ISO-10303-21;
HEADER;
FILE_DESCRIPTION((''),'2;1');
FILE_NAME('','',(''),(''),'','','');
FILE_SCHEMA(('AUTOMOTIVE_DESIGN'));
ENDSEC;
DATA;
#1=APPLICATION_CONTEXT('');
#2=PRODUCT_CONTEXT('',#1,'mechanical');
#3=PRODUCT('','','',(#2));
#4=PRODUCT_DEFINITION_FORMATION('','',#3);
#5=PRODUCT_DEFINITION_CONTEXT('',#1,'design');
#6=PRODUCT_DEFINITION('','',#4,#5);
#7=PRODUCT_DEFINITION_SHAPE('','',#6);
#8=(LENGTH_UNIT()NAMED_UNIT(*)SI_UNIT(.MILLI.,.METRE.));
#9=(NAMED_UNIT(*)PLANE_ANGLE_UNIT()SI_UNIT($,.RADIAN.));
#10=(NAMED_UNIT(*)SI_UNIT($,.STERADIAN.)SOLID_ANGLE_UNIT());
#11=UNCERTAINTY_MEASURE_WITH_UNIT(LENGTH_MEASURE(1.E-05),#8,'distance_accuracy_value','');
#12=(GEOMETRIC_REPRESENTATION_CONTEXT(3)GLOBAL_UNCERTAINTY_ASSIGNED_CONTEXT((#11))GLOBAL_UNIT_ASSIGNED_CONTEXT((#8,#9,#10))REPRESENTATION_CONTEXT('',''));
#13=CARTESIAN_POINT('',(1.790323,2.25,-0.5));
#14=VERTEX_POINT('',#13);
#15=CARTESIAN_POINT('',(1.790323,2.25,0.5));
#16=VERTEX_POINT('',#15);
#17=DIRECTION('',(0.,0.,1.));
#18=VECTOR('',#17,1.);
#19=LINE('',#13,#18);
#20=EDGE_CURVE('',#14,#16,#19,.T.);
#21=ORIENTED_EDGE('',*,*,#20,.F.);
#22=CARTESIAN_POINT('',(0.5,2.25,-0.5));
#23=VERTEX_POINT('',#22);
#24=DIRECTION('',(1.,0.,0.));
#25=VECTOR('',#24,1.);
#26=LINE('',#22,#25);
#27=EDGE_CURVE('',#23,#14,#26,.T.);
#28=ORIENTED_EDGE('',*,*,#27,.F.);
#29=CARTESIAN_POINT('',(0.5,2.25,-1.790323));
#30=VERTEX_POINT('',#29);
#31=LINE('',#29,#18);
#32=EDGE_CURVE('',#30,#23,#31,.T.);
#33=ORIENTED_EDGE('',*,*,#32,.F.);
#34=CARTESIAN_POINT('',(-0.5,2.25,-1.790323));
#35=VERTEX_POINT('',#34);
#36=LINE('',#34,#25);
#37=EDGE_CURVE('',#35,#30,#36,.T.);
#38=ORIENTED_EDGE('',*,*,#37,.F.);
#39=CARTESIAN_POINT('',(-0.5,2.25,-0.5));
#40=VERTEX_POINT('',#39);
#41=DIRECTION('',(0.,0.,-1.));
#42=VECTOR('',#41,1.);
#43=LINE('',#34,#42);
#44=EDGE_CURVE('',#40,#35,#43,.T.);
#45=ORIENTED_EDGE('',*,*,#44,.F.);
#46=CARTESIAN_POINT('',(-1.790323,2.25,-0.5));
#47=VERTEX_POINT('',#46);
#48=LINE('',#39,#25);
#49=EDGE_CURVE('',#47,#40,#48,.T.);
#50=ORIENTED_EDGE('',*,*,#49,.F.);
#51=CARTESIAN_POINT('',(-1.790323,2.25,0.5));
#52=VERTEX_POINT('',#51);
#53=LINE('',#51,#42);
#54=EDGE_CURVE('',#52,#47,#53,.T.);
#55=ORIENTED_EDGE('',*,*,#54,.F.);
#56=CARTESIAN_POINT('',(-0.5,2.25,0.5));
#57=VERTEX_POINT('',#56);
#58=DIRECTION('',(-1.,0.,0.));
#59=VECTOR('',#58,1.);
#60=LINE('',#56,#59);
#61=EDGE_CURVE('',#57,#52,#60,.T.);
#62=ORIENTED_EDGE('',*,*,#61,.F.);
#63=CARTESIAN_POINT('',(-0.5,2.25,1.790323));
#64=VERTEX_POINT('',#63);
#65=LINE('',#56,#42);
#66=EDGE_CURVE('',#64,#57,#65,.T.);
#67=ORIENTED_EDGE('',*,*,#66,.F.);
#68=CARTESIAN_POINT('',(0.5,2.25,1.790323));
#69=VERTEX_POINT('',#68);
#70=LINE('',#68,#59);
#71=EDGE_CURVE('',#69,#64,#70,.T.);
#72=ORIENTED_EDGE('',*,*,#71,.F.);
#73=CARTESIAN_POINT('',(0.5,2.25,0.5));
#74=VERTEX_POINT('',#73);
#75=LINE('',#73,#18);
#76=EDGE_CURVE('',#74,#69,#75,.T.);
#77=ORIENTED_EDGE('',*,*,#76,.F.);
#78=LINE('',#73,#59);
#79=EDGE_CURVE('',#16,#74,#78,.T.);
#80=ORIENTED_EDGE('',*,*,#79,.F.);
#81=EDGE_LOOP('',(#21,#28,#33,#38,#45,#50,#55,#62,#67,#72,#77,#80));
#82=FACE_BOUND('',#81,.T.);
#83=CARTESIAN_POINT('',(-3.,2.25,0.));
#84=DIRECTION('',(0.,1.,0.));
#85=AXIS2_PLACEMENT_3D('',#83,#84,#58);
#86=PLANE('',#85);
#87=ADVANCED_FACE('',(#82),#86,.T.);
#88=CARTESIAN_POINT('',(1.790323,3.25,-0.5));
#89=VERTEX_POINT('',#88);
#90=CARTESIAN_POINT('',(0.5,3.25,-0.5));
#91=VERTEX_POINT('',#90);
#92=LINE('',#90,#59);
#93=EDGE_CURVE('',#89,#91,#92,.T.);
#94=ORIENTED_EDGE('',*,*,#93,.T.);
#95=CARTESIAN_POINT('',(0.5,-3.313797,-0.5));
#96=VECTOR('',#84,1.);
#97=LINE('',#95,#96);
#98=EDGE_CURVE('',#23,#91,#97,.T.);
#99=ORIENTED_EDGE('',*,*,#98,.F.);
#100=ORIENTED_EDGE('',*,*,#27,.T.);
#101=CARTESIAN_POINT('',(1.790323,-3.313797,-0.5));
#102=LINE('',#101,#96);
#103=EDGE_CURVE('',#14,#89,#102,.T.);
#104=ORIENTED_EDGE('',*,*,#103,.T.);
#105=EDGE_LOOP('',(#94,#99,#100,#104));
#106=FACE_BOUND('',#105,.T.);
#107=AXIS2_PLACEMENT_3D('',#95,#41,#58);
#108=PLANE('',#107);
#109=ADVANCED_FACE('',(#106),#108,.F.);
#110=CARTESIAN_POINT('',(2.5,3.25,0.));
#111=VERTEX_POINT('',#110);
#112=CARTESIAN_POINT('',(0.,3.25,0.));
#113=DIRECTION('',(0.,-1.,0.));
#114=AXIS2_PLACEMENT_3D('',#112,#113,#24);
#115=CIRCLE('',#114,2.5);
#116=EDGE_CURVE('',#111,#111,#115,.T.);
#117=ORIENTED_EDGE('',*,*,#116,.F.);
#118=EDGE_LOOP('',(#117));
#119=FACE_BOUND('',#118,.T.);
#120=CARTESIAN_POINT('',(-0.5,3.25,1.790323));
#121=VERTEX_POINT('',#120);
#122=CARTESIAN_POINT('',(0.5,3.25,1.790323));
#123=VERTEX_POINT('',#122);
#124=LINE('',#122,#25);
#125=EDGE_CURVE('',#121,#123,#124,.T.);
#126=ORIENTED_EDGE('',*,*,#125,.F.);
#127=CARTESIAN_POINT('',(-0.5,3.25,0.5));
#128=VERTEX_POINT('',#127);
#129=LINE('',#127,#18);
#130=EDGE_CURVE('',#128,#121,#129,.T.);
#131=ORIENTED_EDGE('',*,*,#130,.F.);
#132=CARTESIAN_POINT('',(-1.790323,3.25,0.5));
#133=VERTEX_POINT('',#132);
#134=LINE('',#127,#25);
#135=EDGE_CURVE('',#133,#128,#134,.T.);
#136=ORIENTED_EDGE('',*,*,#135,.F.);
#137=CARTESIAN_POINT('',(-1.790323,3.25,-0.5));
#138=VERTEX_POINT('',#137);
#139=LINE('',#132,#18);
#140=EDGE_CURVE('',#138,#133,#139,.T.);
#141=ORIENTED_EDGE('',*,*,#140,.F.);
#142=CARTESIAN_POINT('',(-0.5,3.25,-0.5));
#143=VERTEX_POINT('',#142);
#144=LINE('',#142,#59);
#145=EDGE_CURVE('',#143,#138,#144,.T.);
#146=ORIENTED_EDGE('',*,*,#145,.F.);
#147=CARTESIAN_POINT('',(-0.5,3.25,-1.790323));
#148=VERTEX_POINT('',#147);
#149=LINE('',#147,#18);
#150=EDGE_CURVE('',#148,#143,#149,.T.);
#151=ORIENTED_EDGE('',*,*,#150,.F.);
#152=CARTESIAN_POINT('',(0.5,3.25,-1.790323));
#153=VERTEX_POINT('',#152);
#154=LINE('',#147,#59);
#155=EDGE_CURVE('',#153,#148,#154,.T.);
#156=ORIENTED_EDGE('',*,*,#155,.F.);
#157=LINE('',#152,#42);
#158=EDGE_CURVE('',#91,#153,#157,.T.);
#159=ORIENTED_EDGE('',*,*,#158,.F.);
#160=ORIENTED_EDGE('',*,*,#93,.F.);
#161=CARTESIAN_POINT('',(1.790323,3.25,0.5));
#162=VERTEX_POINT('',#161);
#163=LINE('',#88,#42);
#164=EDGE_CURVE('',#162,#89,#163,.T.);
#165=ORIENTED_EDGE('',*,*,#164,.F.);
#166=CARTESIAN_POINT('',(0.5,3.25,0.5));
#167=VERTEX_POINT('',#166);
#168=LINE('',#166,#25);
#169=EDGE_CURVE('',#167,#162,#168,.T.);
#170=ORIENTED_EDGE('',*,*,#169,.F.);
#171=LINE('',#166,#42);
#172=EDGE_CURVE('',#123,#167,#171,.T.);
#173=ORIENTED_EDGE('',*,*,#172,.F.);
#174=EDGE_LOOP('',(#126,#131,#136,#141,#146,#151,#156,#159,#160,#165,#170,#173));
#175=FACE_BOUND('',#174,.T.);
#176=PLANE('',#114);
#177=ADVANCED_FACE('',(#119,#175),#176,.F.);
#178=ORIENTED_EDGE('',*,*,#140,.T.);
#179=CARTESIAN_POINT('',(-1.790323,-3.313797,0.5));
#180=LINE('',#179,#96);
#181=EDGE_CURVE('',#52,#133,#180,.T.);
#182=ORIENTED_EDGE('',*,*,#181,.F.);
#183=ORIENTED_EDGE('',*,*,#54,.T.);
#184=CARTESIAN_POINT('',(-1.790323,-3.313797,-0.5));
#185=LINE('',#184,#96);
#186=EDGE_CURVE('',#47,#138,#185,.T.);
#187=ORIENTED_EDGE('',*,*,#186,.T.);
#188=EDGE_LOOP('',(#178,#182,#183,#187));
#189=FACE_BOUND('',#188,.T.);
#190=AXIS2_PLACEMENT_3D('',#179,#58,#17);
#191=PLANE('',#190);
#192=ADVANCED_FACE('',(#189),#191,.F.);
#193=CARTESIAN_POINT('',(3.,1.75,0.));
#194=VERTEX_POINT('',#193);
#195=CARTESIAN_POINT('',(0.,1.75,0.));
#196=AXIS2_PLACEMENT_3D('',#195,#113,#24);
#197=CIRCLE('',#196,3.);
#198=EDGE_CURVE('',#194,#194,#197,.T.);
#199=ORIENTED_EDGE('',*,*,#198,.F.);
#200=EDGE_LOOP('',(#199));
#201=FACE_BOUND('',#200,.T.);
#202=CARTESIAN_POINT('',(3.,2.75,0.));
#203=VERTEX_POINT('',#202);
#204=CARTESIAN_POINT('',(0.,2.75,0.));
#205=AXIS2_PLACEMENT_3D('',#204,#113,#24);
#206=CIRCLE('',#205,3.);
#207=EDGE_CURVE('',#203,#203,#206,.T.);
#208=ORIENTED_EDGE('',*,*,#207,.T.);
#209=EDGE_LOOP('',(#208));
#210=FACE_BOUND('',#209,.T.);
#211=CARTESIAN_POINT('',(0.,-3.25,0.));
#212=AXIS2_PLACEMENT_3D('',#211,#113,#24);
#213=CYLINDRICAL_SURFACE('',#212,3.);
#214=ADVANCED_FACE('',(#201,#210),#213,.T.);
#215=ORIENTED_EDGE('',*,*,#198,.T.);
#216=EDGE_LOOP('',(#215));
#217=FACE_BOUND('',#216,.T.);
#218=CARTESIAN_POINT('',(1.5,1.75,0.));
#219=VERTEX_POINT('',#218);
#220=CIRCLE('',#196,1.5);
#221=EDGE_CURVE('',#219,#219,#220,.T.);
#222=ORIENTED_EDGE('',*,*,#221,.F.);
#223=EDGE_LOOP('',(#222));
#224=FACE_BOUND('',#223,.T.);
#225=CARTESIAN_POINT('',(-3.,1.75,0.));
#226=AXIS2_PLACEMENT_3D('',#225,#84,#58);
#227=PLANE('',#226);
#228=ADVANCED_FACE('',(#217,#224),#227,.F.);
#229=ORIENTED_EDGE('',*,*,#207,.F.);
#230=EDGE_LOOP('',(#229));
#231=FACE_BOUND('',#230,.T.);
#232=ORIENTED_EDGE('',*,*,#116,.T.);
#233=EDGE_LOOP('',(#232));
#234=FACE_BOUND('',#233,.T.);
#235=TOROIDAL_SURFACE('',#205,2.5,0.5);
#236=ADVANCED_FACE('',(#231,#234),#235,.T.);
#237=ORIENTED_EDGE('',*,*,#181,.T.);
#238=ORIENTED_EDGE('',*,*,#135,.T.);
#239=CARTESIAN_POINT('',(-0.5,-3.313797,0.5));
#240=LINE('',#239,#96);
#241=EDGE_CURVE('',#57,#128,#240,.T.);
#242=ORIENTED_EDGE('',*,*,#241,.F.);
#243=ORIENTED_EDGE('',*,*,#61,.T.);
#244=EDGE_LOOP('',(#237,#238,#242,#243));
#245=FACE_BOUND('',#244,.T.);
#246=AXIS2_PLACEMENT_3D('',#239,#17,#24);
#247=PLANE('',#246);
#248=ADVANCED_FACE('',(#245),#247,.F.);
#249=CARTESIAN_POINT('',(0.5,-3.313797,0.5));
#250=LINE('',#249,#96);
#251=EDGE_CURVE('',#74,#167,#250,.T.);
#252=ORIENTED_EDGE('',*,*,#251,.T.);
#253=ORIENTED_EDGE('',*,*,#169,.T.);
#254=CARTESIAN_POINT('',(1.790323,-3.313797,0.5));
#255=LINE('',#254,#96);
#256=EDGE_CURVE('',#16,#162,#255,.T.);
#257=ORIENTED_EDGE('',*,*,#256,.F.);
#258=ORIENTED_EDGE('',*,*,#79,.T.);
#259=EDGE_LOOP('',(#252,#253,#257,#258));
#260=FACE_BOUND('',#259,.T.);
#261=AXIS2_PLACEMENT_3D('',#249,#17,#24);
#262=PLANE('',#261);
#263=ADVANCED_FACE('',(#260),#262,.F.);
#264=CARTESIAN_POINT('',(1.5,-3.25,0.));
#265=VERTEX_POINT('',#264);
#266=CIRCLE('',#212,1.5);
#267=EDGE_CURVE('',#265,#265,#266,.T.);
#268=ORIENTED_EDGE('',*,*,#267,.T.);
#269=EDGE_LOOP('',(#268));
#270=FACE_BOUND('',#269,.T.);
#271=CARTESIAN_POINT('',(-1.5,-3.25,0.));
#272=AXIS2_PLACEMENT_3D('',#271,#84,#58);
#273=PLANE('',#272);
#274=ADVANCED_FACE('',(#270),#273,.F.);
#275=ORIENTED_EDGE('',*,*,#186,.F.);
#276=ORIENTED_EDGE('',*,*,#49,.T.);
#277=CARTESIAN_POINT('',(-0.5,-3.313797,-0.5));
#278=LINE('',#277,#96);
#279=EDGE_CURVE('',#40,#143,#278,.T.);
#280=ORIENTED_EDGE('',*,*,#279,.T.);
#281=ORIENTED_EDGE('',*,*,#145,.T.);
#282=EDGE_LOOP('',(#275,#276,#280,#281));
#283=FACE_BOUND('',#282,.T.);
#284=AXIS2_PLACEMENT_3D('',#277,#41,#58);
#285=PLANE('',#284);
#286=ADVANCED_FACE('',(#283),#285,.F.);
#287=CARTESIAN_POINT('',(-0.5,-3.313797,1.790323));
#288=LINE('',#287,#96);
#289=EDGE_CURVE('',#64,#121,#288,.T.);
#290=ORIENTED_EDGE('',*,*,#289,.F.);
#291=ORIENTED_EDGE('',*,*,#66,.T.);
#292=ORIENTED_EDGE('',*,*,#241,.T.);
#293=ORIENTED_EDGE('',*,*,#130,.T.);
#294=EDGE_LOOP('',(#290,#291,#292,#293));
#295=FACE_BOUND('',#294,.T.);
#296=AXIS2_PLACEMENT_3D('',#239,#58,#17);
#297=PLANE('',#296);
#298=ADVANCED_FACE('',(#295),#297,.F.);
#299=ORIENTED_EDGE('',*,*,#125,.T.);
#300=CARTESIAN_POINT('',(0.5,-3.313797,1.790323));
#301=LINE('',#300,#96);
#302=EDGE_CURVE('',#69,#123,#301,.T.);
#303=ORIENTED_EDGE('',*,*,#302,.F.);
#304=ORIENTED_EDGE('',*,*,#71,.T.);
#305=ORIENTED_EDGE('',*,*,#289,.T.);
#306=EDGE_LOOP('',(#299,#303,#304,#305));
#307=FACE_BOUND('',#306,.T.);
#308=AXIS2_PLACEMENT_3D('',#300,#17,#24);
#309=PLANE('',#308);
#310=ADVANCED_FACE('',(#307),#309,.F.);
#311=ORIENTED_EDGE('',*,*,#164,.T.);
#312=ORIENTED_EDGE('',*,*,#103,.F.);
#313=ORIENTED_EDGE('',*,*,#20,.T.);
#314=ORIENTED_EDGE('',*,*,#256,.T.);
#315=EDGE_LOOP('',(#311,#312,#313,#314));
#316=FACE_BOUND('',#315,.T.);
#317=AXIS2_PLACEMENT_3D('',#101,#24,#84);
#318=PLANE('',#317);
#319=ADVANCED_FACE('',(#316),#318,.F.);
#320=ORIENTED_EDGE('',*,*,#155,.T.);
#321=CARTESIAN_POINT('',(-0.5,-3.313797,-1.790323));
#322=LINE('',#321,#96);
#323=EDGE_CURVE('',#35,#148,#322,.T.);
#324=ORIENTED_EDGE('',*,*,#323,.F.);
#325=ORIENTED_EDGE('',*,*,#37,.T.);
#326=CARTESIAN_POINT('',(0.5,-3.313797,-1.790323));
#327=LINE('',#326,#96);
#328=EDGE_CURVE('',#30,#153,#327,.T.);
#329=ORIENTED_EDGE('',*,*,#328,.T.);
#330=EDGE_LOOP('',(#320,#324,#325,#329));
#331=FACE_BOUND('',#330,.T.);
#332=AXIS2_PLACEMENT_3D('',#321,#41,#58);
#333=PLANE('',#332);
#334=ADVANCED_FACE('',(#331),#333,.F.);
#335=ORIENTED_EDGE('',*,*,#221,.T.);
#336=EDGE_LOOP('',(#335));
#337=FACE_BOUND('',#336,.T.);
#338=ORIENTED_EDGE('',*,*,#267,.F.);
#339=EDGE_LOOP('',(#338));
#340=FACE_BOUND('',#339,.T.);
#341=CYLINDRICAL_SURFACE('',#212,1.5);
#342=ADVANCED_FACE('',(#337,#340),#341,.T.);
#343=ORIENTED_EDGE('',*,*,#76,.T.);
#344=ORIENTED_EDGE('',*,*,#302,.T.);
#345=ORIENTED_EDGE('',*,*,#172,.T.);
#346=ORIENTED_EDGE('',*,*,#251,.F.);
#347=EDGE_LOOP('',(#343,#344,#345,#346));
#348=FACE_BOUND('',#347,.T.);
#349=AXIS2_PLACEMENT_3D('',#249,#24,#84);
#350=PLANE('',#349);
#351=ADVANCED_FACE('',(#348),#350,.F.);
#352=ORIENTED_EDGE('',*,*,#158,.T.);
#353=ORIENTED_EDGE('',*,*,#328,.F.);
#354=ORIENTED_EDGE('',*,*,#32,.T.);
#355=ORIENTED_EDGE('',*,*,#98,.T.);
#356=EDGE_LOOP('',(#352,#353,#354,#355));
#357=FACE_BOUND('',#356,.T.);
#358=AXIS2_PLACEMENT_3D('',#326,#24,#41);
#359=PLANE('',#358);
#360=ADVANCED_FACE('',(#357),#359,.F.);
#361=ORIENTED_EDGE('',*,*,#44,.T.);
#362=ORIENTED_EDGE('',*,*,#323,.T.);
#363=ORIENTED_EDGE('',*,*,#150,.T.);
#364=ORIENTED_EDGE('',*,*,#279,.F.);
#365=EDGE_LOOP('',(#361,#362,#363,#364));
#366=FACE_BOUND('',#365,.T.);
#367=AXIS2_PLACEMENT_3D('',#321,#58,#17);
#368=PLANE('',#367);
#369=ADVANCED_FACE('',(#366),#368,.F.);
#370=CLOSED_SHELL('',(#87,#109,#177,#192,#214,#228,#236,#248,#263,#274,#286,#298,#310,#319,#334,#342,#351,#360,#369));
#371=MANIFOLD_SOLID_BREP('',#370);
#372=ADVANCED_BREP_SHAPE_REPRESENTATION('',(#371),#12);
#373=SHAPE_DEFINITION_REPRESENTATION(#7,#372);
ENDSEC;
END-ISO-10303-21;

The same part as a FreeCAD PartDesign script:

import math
import FreeCAD as App
import Part
import Sketcher

V = App.Vector


def add_polygon(sketch, points):
    """Adds a closed chain of lines whose ends are joined by coincident constraints."""
    first, n = sketch.GeometryCount, len(points)
    for a, b in zip(points, points[1:] + points[:1]):
        sketch.addGeometry(Part.LineSegment(App.Vector(*a, 0), App.Vector(*b, 0)), False)
    for i in range(n):
        sketch.addConstraint(Sketcher.Constraint("Coincident", first + i, 2, first + (i + 1) % n, 1))

doc = App.newDocument("Part")
body = doc.addObject("PartDesign::Body", "Body")

sketch1 = body.newObject("Sketcher::SketchObject", "Sketch")
sketch1.AttachmentSupport = (doc.getObject("XY_Plane"), [""])
sketch1.MapMode = "FlatFace"
sketch1.addGeometry([
    Part.LineSegment(V(-1.5, 1.75, 0), V(-1.5, -3.25, 0)),
    Part.LineSegment(V(-1.5, -3.25, 0), V(0, -3.25, 0)),
    Part.LineSegment(V(0, -3.25, 0), V(0, 3.25, 0)),
    Part.LineSegment(V(0, 3.25, 0), V(-2.5, 3.25, 0)),
    Part.ArcOfCircle(Part.Circle(V(-2.5, 2.75, 0), V(0, 0, 1), 0.5), math.radians(90), math.radians(180)),
    Part.LineSegment(V(-3, 2.75, 0), V(-3, 1.75, 0)),
    Part.LineSegment(V(-3, 1.75, 0), V(-1.5, 1.75, 0)),
], False)
sketch1.addConstraint([
    Sketcher.Constraint("Coincident", 0, 2, 1, 1),
    Sketcher.Constraint("Coincident", 1, 2, 2, 1),
    Sketcher.Constraint("Coincident", 2, 2, 3, 1),
    Sketcher.Constraint("Tangent", 3, 2, 4, 1),
    Sketcher.Constraint("Tangent", 4, 2, 5, 1),
    Sketcher.Constraint("Coincident", 5, 2, 6, 1),
    Sketcher.Constraint("Coincident", 6, 2, 0, 1),
    Sketcher.Constraint("Vertical", 0),
    Sketcher.Constraint("Horizontal", 1),
    Sketcher.Constraint("Vertical", 2),
    Sketcher.Constraint("Horizontal", 3),
    Sketcher.Constraint("Vertical", 5),
    Sketcher.Constraint("Horizontal", 6),
    Sketcher.Constraint("Symmetric", 1, 2, 2, 2, -1, 1),
    Sketcher.Constraint("Equal", 1, 6),
    Sketcher.Constraint("Radius", 4, 0.5),
    Sketcher.Constraint("DistanceY", 0, 2, 0, 1, 5.0),
    Sketcher.Constraint("DistanceY", 5, 2, 5, 1, 1.0),
    Sketcher.Constraint("DistanceX", 1, 1, 1, 2, 1.5),
])
revolution = body.newObject("PartDesign::Revolution", "Revolution")
revolution.Profile = sketch1
revolution.ReferenceAxis = (sketch1, ["V_Axis"])
revolution.Angle = 360

sketch2 = body.newObject("Sketcher::SketchObject", "Sketch001")
sketch2.AttachmentSupport = (doc.getObject("XZ_Plane"), [""])
sketch2.MapMode = "FlatFace"
sketch2.AttachmentOffset = App.Placement(V(0, 0, -3.25), App.Rotation())
add_polygon(sketch2, [(0.5, -1.8), (-0.5, -1.8), (-0.5, -0.5), (-1.8, -0.5), (-1.8, 0.5), (-0.5, 0.5), (-0.5, 1.8), (0.5, 1.8), (0.5, 0.5), (1.8, 0.5), (1.8, -0.5), (0.5, -0.5)])
sketch2.addConstraint([
    Sketcher.Constraint("Horizontal", 0),
    Sketcher.Constraint("Vertical", 1),
    Sketcher.Constraint("Horizontal", 2),
    Sketcher.Constraint("Vertical", 3),
    Sketcher.Constraint("Horizontal", 4),
    Sketcher.Constraint("Vertical", 5),
    Sketcher.Constraint("Horizontal", 6),
    Sketcher.Constraint("Vertical", 7),
    Sketcher.Constraint("Horizontal", 8),
    Sketcher.Constraint("Vertical", 9),
    Sketcher.Constraint("Horizontal", 10),
    Sketcher.Constraint("Vertical", 11),
    Sketcher.Constraint("Symmetric", 0, 2, 6, 2, -1, 1),
    Sketcher.Constraint("Symmetric", 2, 2, 8, 2, -1, 1),
    Sketcher.Constraint("Symmetric", 4, 2, 10, 2, -1, 1),
    Sketcher.Constraint("Symmetric", 4, 2, 7, 2, -2),
    Sketcher.Constraint("Equal", 10, 1),
    Sketcher.Constraint("Equal", 6, 3),
    Sketcher.Constraint("DistanceX", 0, 2, 0, 1, 1.0),
    Sketcher.Constraint("DistanceX", 2, 2, 2, 1, 1.290323),
])
pocket1 = body.newObject("PartDesign::Pocket", "Pocket")
pocket1.Profile = sketch2
pocket1.Length = 1
pocket1.Reversed = True

doc.recompute()
